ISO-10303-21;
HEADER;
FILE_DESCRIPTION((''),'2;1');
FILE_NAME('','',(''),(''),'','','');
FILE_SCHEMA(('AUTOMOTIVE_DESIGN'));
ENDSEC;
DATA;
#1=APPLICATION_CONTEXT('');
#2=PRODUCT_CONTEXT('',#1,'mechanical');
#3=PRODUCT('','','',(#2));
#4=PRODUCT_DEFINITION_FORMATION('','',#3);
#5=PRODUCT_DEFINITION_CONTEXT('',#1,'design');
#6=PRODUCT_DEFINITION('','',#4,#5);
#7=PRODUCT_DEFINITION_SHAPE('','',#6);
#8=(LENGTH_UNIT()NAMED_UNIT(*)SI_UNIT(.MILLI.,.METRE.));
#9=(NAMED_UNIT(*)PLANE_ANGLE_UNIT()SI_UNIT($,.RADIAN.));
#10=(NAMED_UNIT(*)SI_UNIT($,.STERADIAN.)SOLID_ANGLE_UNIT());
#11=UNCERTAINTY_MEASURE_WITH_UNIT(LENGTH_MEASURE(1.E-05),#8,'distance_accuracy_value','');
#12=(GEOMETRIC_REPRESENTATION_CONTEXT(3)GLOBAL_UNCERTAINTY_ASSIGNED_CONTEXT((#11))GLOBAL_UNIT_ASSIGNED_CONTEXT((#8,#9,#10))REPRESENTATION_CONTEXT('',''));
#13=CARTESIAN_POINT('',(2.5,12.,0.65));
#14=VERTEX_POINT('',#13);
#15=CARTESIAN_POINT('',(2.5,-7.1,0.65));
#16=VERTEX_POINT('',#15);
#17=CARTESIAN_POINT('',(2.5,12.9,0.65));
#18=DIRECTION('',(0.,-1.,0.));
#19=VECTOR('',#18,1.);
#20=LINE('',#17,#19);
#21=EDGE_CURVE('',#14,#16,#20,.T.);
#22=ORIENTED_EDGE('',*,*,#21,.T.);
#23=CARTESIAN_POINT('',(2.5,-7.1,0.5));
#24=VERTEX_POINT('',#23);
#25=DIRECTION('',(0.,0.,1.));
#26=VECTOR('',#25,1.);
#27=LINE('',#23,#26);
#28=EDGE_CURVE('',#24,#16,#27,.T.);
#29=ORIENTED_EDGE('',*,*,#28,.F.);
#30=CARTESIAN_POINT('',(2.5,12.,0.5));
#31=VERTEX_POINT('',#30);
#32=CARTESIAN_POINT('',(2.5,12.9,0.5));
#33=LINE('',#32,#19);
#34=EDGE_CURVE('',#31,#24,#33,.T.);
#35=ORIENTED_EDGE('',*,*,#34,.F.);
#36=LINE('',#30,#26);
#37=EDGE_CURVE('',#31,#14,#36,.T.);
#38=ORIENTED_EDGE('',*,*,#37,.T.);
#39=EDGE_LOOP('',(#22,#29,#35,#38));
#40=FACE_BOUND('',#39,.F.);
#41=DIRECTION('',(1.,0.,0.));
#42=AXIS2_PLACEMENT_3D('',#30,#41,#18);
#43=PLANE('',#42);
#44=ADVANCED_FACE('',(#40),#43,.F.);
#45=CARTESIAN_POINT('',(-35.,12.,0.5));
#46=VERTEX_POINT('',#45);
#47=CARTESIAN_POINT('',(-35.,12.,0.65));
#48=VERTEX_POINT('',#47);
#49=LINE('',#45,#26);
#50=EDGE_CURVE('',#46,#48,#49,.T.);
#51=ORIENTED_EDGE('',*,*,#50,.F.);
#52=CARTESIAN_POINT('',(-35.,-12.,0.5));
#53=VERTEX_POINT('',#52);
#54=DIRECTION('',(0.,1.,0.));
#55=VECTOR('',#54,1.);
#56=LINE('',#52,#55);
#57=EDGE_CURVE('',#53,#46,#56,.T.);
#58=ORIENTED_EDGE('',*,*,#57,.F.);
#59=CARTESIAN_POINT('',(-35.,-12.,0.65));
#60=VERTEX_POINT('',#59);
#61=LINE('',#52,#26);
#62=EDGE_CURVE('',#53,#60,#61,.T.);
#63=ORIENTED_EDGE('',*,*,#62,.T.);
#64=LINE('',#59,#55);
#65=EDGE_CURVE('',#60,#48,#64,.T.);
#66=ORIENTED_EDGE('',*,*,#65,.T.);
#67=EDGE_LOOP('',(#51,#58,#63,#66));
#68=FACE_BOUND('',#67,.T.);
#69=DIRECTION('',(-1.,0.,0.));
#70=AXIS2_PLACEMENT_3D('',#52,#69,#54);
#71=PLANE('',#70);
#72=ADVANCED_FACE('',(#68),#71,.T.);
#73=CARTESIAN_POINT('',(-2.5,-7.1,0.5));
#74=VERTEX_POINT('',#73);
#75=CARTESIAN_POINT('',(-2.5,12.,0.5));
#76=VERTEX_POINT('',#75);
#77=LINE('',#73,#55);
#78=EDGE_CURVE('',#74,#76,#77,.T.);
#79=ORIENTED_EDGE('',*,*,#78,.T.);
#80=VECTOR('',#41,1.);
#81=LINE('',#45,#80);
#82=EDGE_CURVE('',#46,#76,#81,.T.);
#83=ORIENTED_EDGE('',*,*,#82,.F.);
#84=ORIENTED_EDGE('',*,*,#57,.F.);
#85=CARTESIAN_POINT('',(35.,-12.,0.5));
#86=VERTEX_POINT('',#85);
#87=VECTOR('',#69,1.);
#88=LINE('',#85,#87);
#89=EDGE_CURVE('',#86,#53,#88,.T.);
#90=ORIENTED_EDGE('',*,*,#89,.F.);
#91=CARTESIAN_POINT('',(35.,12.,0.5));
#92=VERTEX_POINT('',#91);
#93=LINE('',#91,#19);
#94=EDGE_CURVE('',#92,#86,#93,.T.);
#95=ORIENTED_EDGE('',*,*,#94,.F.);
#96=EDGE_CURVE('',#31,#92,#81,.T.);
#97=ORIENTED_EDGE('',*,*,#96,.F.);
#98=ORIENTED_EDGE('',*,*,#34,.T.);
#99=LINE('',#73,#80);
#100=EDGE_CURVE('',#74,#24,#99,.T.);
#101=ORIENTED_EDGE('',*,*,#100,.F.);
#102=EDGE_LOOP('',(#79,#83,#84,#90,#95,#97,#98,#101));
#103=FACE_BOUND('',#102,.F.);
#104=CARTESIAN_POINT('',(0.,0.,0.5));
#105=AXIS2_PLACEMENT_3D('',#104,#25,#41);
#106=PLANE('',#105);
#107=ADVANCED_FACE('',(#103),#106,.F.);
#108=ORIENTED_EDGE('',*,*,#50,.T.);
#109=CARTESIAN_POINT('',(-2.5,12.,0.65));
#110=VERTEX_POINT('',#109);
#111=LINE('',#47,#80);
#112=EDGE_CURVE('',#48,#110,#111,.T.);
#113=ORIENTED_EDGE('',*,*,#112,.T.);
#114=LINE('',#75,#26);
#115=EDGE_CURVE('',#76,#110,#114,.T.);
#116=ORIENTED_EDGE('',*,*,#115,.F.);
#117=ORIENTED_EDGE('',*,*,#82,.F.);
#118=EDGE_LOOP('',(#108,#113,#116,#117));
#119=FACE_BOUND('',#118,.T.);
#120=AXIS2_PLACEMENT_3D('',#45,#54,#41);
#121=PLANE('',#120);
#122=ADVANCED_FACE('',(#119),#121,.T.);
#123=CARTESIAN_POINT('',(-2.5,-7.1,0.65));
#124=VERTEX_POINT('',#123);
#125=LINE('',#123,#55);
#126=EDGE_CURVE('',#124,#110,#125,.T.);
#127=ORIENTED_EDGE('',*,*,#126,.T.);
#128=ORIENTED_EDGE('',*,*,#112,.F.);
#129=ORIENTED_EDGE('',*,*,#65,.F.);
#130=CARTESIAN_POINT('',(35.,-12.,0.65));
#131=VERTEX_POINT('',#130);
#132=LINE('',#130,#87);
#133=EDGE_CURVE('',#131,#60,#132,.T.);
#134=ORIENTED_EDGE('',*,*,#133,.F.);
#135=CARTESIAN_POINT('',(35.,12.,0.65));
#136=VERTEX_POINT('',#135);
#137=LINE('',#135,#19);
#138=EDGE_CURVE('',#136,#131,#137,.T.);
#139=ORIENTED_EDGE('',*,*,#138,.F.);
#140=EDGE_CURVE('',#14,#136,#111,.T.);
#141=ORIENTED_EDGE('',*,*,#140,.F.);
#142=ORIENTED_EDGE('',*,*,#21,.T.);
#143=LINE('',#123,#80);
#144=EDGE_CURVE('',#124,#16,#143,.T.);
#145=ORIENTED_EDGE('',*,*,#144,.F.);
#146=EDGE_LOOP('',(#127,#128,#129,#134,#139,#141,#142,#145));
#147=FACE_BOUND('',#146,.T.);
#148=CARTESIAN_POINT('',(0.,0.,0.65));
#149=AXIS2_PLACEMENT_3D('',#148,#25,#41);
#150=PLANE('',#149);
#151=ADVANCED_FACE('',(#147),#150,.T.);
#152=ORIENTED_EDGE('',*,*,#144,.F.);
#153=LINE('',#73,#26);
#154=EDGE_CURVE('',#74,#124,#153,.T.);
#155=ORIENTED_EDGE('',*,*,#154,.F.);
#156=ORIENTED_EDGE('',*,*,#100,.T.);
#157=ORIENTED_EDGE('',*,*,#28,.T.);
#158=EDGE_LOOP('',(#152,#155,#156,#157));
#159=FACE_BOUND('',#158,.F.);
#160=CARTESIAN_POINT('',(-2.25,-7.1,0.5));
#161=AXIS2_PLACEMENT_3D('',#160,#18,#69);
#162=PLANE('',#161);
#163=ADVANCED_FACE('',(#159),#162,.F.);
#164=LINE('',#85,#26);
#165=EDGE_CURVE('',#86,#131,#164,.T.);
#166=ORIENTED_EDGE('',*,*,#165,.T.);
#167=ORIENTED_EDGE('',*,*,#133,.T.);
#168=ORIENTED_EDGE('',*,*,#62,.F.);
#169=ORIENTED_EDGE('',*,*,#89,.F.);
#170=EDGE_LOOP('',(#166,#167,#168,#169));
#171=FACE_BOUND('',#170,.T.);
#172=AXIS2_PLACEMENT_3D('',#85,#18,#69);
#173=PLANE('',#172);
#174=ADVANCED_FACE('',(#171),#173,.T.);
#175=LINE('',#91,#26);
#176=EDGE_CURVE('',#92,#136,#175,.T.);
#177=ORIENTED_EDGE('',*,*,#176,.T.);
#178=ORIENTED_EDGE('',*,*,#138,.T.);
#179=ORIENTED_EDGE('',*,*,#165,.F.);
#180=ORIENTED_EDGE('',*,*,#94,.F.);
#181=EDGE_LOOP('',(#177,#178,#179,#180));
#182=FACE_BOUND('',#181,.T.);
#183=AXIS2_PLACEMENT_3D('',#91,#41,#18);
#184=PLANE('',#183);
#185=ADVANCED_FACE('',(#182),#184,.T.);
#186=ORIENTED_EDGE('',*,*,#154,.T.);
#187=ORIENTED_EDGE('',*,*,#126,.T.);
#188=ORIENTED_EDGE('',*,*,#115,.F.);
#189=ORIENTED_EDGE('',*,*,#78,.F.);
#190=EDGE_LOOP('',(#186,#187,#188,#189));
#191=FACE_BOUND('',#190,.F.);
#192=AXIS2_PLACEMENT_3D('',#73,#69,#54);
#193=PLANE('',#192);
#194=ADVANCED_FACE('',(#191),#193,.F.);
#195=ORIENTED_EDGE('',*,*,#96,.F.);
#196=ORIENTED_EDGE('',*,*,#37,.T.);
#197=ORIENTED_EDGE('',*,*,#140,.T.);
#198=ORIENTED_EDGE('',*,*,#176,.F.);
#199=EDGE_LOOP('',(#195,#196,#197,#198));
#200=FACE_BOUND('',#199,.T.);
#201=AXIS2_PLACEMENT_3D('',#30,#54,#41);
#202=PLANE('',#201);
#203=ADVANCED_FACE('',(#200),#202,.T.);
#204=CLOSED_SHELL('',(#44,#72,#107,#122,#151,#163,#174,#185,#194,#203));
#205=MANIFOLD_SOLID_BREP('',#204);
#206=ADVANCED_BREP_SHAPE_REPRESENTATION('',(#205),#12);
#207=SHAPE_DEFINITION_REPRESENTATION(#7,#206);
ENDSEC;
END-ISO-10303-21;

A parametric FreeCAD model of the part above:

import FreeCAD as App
import Part
import Sketcher


def add_polygon(sketch, points):
    """Adds a closed chain of lines whose ends are joined by coincident constraints."""
    first, n = sketch.GeometryCount, len(points)
    for a, b in zip(points, points[1:] + points[:1]):
        sketch.addGeometry(Part.LineSegment(App.Vector(*a, 0), App.Vector(*b, 0)), False)
    for i in range(n):
        sketch.addConstraint(Sketcher.Constraint("Coincident", first + i, 2, first + (i + 1) % n, 1))

doc = App.newDocument("Part")
body = doc.addObject("PartDesign::Body", "Body")

# Sketch on XY plane
sketch1 = doc.addObject("Sketcher::SketchObject", "Sketch")
body.addObject(sketch1)
sketch1.AttachmentSupport = (doc.XY_Plane, [""])
sketch1.MapMode = "FlatFace"
sketch1.AttachmentOffset = App.Placement(App.Vector(0, 0, 0.5), App.Rotation())
add_polygon(sketch1, [(35, 12), (2, 12), (2, -7), (-2, -7), (-2, 12), (-35, 12), (-35, -12), (35, -12)])  # lines 0-7
sketch1.addConstraint(Sketcher.Constraint("Horizontal", 0))
sketch1.addConstraint(Sketcher.Constraint("Vertical", 1))
sketch1.addConstraint(Sketcher.Constraint("Horizontal", 2))
sketch1.addConstraint(Sketcher.Constraint("Vertical", 3))
sketch1.addConstraint(Sketcher.Constraint("Horizontal", 4))
sketch1.addConstraint(Sketcher.Constraint("Vertical", 5))
sketch1.addConstraint(Sketcher.Constraint("Horizontal", 6))
sketch1.addConstraint(Sketcher.Constraint("Vertical", 7))
sketch1.addConstraint(Sketcher.Constraint("Symmetric", 4, 2, 6, 2, -1, 1))
sketch1.addConstraint(Sketcher.Constraint("Symmetric", 0, 2, 3, 2, -2))
sketch1.addConstraint(Sketcher.Constraint("DistanceX", 6, 1, 6, 2, 70.0))
sketch1.addConstraint(Sketcher.Constraint("DistanceY", 5, 2, 5, 1, 24.0))
sketch1.addConstraint(Sketcher.Constraint("DistanceX", 2, 2, 2, 1, 5.0))
sketch1.addConstraint(Sketcher.Constraint("DistanceY", 1, 2, 1, 1, 19.1))
pad1 = doc.addObject("PartDesign::Pad", "Pad")
body.addObject(pad1)
pad1.Profile = sketch1
pad1.Length = 0.15

doc.recompute()
